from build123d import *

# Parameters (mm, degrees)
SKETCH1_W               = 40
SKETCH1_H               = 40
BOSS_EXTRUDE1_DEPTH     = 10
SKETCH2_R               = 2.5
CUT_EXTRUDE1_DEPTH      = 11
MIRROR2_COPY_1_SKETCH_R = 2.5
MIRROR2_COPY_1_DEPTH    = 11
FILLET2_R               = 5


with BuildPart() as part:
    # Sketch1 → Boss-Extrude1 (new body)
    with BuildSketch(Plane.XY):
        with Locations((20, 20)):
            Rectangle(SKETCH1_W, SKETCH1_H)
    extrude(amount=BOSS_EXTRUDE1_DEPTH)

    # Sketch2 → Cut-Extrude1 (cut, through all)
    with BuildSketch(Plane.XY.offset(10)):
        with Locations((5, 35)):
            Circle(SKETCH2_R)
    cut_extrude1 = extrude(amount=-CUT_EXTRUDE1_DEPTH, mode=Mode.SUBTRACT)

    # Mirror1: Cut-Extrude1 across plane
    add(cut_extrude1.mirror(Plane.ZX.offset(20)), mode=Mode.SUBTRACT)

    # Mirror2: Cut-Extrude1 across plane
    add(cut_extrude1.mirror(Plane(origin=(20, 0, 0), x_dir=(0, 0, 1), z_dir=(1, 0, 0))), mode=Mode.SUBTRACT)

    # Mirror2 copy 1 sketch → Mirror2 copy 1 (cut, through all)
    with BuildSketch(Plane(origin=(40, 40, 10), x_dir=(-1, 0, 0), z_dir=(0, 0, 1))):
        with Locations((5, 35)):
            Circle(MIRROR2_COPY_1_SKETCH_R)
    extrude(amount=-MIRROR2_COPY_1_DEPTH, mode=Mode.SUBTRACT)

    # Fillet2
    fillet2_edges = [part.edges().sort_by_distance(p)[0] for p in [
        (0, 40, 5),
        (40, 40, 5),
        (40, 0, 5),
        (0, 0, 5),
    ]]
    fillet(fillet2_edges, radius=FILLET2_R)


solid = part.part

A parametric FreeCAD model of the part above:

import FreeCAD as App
import Part
import Sketcher
Q = App.Units.Quantity


def edges_at(feature, points):
    """Names of the edges that pass closest to the given points."""
    edges = feature.Shape.Edges
    near = lambda p: min(range(len(edges)), key=lambda i: edges[i].distToShape(Part.Vertex(*p))[0])
    return sorted({f"Edge{near(p) + 1}" for p in points})


def add_polygon(sketch, points):
    """Adds a closed chain of lines whose ends are joined by coincident constraints."""
    first, n = sketch.GeometryCount, len(points)
    for a, b in zip(points, points[1:] + points[:1]):
        sketch.addGeometry(Part.LineSegment(App.Vector(*a, 0), App.Vector(*b, 0)), False)
    for i in range(n):
        sketch.addConstraint(Sketcher.Constraint("Coincident", first + i, 2, first + (i + 1) % n, 1))

doc = App.newDocument("Part")
body = doc.addObject("PartDesign::Body", "Body")

# Sketch on XY plane
sketch1 = body.newObject("Sketcher::SketchObject", "Sketch")
sketch1.AttachmentSupport = (doc.getObject("XY_Plane"), [""])
sketch1.MapMode = "FlatFace"
add_polygon(sketch1, [(0, 40), (0, 0), (40, 0), (40, 40)])  # lines 0-3
sketch1.addConstraint(Sketcher.Constraint("Vertical", 0))
sketch1.addConstraint(Sketcher.Constraint("Horizontal", 1))
sketch1.addConstraint(Sketcher.Constraint("Vertical", 2))
sketch1.addConstraint(Sketcher.Constraint("Horizontal", 3))
sketch1.addConstraint(Sketcher.Constraint("Coincident", 0, 2, -1, 1))
sketch1.addConstraint(Sketcher.Constraint("Equal", 3, 0))
sketch1.addConstraint(Sketcher.Constraint("DistanceX", 1, 1, 1, 2, Q("40 mm")))
pad1 = body.newObject("PartDesign::Pad", "Pad")
pad1.Profile = sketch1
pad1.Length = 10

# Sketch on XY plane
sketch2 = body.newObject("Sketcher::SketchObject", "Sketch001")
sketch2.AttachmentSupport = (doc.getObject("XY_Plane"), [""])
sketch2.MapMode = "FlatFace"
sketch2.AttachmentOffset = App.Placement(App.Vector(0, 0, 10), App.Rotation())
sketch2.addGeometry(Part.Circle(App.Vector(5, 35, 0), App.Vector(0, 0, 1), 2.5), False)
sketch2.addConstraint(Sketcher.Constraint("Diameter", 0, Q("5 mm")))
sketch2.addConstraint(Sketcher.Constraint("DistanceX", -1, 1, 0, 3, Q("5 mm")))
sketch2.addConstraint(Sketcher.Constraint("DistanceY", -1, 1, 0, 3, Q("35 mm")))
pocket1 = body.newObject("PartDesign::Pocket", "Pocket")
pocket1.Profile = sketch2
pocket1.Type = "ThroughAll"
doc.recompute()

datumplane = body.newObject("PartDesign::Plane", "DatumPlane")
datumplane.AttachmentSupport = (doc.getObject("XZ_Plane"), [""])
datumplane.MapMode = "FlatFace"
datumplane.AttachmentOffset = App.Placement(App.Vector(0, 0, -20), App.Rotation())
mirrored = body.newObject("PartDesign::Mirrored", "Mirrored")
mirrored.Originals = [pocket1]
mirrored.MirrorPlane = (datumplane, [""])
body.Tip = mirrored
doc.recompute()

datumplane2 = body.newObject("PartDesign::Plane", "DatumPlane001")
datumplane2.AttachmentSupport = (doc.getObject("YZ_Plane"), [""])
datumplane2.MapMode = "FlatFace"
datumplane2.AttachmentOffset = App.Placement(App.Vector(0, 0, 20), App.Rotation())
mirrored2 = body.newObject("PartDesign::Mirrored", "Mirrored001")
mirrored2.Originals = [pocket1]
mirrored2.MirrorPlane = (datumplane2, [""])
body.Tip = mirrored2

# Sketch on XY plane
sketch3 = body.newObject("Sketcher::SketchObject", "Sketch002")
sketch3.AttachmentSupport = (doc.getObject("XY_Plane"), [""])
sketch3.MapMode = "FlatFace"
sketch3.AttachmentOffset = App.Placement(App.Vector(0, 0, 10), App.Rotation())
sketch3.addGeometry(Part.Circle(App.Vector(35, 5, 0), App.Vector(0, 0, 1), 2.5), False)
sketch3.addConstraint(Sketcher.Constraint("Diameter", 0, Q("5 mm")))
sketch3.addConstraint(Sketcher.Constraint("DistanceX", -1, 1, 0, 3, Q("35 mm")))
sketch3.addConstraint(Sketcher.Constraint("DistanceY", -1, 1, 0, 3, Q("5 mm")))
pocket2 = body.newObject("PartDesign::Pocket", "Pocket001")
pocket2.Profile = sketch3
pocket2.Type = "ThroughAll"
doc.recompute()

fillet = body.newObject("PartDesign::Fillet", "Fillet")
fillet.Base = (pocket2, edges_at(pocket2, [
    (0, 40, 5),
    (40, 40, 5),
    (40, 0, 5),
    (0, 0, 5),
]))
fillet.Radius = 5

doc.recompute()
